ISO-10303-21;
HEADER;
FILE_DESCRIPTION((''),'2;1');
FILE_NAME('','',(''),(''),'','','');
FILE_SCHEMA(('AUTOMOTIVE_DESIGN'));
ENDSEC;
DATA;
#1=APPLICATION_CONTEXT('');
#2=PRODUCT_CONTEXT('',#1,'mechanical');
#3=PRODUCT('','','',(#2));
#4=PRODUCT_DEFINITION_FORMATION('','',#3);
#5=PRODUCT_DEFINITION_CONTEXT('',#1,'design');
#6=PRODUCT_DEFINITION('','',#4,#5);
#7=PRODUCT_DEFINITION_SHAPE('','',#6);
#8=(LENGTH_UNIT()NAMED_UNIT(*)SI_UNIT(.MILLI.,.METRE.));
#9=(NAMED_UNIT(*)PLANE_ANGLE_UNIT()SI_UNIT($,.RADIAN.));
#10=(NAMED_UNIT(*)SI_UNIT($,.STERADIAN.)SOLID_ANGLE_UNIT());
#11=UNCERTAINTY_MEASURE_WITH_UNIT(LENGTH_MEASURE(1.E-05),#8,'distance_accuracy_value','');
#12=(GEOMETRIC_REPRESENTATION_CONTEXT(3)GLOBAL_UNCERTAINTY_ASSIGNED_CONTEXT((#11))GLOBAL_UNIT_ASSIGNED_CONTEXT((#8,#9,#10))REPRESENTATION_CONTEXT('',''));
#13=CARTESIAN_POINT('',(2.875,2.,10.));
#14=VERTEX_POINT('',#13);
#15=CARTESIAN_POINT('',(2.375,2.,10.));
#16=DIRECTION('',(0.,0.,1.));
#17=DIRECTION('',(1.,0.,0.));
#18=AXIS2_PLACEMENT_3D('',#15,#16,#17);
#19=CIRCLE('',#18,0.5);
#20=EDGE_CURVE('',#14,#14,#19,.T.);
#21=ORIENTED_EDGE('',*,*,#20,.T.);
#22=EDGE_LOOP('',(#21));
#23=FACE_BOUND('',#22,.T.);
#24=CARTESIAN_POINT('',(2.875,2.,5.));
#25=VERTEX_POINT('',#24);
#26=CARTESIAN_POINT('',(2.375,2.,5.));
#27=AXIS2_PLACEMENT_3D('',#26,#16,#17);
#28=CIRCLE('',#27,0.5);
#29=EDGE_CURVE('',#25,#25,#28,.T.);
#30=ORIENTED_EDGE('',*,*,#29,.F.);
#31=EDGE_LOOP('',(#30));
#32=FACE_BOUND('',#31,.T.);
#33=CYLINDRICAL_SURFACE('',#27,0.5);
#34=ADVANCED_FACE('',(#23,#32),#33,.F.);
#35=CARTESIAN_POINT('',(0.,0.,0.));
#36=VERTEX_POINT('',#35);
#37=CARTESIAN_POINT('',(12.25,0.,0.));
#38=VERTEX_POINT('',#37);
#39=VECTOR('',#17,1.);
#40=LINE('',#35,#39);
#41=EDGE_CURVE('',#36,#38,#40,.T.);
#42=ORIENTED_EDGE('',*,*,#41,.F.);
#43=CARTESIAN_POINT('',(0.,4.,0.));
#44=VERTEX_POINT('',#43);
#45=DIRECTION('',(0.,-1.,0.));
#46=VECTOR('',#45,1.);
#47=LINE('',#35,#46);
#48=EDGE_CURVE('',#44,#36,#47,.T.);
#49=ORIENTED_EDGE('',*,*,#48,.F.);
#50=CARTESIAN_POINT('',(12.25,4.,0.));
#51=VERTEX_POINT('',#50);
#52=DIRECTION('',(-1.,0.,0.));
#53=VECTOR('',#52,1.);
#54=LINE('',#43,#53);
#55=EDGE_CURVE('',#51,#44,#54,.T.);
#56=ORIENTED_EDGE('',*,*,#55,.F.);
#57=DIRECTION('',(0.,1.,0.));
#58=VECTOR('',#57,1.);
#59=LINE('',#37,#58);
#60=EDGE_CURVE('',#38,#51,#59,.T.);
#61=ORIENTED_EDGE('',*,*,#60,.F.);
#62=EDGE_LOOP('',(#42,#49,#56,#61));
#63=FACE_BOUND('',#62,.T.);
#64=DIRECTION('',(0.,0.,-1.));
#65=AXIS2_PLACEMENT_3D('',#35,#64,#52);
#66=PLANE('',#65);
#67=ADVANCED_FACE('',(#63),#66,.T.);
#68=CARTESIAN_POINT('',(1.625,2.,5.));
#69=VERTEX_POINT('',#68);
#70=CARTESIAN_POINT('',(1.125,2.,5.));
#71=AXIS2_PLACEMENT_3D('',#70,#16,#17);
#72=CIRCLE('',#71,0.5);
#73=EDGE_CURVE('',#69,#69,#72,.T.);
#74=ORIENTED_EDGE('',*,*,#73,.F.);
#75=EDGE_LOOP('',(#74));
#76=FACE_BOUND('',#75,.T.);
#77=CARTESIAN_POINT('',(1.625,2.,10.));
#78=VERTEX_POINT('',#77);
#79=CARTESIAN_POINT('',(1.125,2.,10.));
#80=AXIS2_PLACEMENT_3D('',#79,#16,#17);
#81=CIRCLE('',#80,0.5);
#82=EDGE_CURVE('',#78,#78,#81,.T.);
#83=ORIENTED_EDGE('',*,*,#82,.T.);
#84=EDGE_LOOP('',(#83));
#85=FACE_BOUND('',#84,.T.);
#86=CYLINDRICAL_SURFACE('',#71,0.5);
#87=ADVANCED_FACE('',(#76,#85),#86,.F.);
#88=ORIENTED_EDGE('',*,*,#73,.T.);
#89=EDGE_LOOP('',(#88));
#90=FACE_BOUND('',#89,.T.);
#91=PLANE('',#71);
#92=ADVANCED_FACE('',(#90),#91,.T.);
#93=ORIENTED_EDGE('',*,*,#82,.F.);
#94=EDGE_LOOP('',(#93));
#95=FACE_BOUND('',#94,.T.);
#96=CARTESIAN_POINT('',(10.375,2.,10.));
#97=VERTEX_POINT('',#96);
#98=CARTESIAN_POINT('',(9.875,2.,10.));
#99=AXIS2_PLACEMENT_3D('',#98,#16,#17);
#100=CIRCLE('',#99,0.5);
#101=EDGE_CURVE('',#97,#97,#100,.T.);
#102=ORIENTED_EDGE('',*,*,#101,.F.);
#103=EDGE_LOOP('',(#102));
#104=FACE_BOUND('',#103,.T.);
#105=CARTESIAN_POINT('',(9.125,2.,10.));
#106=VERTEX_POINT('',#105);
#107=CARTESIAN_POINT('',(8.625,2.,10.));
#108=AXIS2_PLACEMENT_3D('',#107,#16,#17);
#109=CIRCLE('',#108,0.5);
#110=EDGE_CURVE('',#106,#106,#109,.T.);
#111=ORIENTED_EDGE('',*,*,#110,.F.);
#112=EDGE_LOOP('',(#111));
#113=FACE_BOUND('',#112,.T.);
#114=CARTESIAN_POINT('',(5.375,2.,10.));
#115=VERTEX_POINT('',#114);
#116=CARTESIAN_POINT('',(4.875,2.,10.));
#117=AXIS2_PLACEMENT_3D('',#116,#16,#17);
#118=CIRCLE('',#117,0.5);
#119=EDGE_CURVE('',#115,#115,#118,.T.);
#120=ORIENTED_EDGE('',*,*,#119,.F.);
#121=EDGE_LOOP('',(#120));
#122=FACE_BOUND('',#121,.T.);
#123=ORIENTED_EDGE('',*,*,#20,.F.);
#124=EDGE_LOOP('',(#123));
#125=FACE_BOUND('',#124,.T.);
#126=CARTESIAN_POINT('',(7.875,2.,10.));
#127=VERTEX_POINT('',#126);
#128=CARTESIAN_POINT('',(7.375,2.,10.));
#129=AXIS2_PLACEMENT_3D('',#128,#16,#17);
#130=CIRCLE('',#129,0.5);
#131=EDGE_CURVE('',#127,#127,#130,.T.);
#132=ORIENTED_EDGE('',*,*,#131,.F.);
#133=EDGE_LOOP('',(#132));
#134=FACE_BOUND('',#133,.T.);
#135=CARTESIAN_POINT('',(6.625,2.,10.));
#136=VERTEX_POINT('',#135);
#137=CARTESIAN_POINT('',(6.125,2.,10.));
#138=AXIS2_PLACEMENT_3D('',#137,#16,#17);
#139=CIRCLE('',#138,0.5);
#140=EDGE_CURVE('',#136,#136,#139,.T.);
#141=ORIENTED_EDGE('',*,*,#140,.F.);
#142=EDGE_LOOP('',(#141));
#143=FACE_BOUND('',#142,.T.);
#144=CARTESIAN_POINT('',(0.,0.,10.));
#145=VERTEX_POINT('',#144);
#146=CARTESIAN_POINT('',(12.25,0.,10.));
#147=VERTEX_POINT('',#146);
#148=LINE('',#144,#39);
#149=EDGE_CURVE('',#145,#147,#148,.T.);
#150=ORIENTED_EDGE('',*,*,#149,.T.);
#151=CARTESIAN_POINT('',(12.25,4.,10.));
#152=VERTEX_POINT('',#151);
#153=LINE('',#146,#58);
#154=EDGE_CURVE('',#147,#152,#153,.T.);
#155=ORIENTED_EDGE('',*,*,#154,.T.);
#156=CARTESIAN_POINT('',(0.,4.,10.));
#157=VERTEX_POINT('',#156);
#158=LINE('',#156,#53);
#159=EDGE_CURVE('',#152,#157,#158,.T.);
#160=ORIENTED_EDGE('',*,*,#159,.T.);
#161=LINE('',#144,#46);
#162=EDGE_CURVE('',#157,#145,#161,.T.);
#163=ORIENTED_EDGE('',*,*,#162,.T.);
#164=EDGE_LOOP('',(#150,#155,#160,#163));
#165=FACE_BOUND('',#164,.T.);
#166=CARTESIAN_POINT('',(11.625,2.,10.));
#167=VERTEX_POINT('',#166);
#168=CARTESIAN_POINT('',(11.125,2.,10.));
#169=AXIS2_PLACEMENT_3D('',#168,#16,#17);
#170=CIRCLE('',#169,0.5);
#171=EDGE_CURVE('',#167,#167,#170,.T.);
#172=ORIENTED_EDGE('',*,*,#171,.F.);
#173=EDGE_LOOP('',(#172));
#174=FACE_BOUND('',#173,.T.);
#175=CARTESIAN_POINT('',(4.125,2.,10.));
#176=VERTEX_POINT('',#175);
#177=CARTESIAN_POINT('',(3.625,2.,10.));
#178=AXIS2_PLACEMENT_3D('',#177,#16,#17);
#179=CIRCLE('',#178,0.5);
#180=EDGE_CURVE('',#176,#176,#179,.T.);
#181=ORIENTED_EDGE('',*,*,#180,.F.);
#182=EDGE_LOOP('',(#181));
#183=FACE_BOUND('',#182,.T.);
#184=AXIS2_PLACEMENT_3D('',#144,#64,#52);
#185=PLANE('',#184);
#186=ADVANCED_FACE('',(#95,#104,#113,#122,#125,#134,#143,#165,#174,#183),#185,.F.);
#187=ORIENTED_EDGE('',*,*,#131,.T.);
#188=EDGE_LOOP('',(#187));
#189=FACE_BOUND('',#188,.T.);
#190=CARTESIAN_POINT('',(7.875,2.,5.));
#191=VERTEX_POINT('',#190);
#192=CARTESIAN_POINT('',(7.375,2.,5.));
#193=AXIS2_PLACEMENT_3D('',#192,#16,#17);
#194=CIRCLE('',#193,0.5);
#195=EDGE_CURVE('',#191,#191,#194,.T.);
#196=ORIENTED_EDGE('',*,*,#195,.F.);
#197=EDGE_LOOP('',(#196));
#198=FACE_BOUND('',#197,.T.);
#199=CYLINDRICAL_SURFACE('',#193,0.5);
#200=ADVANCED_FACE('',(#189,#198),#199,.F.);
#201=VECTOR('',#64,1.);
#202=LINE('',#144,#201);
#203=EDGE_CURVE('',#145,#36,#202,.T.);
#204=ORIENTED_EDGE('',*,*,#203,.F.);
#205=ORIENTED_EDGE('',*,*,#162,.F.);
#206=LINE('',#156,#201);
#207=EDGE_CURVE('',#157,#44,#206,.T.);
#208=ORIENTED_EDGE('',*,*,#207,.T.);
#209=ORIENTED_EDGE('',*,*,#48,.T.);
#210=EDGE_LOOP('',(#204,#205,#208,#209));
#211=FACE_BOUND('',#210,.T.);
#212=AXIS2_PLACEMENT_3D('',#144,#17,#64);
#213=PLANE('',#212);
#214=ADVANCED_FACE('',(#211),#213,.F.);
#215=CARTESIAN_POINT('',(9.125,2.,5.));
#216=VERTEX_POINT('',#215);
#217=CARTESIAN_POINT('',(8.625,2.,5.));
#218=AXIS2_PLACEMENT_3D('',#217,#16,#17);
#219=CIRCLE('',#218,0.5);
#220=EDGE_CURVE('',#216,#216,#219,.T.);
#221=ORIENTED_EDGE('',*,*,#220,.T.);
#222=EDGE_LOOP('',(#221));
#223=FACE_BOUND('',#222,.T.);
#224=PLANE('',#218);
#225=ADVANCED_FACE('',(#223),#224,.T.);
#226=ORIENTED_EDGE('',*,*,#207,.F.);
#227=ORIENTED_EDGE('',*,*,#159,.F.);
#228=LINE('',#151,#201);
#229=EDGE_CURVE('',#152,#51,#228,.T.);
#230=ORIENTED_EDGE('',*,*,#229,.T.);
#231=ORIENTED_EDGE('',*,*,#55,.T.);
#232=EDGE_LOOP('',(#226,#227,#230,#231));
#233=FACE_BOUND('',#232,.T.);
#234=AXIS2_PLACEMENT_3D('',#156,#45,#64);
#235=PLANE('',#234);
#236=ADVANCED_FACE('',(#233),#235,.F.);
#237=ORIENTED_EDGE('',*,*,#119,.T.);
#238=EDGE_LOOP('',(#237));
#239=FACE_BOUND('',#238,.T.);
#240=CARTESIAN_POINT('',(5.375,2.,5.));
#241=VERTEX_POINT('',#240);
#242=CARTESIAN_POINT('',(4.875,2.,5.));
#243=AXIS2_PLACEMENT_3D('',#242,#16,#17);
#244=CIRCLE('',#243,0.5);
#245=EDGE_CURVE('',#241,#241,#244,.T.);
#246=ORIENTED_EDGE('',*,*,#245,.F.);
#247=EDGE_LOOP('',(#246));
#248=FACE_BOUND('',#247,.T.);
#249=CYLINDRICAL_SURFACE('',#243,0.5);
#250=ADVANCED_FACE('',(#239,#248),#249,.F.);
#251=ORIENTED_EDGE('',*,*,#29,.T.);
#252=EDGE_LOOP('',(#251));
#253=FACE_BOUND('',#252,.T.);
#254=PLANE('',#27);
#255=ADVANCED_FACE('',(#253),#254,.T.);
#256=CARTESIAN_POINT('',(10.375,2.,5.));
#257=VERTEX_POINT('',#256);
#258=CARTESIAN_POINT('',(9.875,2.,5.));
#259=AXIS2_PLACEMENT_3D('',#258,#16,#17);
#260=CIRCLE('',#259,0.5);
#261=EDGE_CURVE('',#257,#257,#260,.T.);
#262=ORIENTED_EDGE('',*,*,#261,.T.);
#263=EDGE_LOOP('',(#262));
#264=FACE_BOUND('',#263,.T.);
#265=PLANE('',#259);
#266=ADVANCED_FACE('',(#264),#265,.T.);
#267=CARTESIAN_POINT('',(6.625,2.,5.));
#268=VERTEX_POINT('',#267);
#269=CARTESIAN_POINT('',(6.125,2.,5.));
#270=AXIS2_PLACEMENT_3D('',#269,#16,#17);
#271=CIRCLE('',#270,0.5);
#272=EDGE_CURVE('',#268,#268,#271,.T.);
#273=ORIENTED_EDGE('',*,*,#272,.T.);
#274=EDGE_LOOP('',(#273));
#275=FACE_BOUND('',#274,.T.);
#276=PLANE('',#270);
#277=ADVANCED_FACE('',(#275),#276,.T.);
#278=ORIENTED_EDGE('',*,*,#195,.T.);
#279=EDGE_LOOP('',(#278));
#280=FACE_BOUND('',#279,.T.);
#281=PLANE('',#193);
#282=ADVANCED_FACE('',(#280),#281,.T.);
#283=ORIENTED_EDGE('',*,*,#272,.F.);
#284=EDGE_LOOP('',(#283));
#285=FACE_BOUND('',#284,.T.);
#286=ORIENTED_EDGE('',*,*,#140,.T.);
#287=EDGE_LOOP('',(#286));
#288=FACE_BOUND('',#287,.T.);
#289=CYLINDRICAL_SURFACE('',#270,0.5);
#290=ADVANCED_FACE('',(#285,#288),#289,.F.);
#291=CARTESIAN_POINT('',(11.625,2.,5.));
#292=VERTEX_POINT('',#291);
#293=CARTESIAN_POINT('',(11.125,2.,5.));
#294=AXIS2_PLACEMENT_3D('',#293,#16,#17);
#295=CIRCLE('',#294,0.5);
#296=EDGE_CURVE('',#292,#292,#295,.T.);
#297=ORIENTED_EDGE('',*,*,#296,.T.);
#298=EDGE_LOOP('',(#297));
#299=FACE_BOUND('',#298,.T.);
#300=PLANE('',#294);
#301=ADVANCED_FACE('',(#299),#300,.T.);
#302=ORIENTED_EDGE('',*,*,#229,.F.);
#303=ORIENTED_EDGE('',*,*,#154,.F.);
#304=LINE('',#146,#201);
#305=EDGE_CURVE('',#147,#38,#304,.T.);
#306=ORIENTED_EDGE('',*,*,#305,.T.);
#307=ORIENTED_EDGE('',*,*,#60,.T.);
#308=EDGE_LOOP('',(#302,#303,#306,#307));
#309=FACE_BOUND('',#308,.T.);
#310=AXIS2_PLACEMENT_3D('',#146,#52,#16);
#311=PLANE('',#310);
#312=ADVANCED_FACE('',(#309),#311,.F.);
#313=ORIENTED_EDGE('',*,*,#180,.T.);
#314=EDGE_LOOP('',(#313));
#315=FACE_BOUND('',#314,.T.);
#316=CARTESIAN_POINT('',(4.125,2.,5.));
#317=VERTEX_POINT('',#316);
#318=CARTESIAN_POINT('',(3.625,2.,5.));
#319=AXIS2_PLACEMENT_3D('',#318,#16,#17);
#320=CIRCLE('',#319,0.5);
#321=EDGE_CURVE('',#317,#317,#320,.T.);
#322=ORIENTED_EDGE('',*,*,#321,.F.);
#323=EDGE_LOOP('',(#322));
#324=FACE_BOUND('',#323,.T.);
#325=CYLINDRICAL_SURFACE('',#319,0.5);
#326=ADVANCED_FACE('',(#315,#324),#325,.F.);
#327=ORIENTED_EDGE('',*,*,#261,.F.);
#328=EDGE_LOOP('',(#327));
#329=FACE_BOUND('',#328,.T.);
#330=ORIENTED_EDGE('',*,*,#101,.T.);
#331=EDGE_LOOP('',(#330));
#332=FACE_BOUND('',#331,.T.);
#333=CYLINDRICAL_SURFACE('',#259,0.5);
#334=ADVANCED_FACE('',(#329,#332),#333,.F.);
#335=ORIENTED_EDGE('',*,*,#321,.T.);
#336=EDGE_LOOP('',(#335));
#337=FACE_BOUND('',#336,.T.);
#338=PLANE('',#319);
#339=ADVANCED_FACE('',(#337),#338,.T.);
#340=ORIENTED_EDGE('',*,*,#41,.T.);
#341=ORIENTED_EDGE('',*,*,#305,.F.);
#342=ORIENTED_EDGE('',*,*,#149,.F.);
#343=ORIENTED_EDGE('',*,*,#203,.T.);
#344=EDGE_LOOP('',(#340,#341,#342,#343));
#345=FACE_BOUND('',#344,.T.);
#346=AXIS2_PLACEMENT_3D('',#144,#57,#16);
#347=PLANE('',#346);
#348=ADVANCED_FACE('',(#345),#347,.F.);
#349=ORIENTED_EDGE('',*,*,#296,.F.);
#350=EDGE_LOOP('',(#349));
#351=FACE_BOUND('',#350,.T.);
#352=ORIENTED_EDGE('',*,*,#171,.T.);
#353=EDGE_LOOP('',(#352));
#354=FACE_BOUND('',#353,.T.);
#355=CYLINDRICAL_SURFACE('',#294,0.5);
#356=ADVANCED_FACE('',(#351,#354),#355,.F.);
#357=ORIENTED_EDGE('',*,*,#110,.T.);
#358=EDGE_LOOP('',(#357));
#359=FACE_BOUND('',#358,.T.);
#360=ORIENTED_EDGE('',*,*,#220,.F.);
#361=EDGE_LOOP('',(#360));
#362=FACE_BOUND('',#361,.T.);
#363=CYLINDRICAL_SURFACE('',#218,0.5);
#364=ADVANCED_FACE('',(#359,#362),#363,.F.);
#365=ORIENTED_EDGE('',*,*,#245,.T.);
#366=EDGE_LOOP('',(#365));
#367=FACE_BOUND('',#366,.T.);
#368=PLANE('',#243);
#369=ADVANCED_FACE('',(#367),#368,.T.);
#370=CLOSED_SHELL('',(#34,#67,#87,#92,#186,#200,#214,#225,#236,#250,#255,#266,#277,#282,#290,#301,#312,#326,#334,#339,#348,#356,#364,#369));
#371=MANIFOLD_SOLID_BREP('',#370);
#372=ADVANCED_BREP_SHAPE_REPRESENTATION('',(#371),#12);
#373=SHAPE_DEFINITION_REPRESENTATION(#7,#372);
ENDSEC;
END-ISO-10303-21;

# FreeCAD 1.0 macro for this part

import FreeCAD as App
import Part
import Sketcher
Q = App.Units.Quantity

doc = App.newDocument("Part")
params = doc.addObject("Spreadsheet::Sheet", "Params")
for row, (alias, value) in enumerate([
    ("sketch1_height", "4 mm"),
    ("sketch1_width", "12.25 mm"),
    ("pad1_length", "10 mm"),
    ("sketch2_diameter", "1 mm"),
    ("pocket1_length", "5 mm"),
], start=1):
    params.set(f"A{row}", alias)
    params.set(f"B{row}", "=" + value)
    params.setAlias(f"B{row}", alias)

body = doc.addObject("PartDesign::Body", "Body")

# Sketch on XY plane
sketch1 = body.newObject("Sketcher::SketchObject", "Sketch")
sketch1.AttachmentSupport = (doc.getObject("XY_Plane"), [""])
sketch1.MapMode = "FlatFace"
sketch1.addGeometry([
    Part.LineSegment(App.Vector(0, 4, 0), App.Vector(0, 0, 0)),
    Part.LineSegment(App.Vector(0, 0, 0), App.Vector(12.2, 0, 0)),
    Part.LineSegment(App.Vector(12.2, 0, 0), App.Vector(12.2, 4, 0)),
    Part.LineSegment(App.Vector(12.2, 4, 0), App.Vector(0, 4, 0)),
], False)
sketch1.addConstraint([
    Sketcher.Constraint("Coincident", 0, 2, 1, 1),
    Sketcher.Constraint("Coincident", 1, 2, 2, 1),
    Sketcher.Constraint("Coincident", 2, 2, 3, 1),
    Sketcher.Constraint("Coincident", 3, 2, 0, 1),
    Sketcher.Constraint("Vertical", 0),
    Sketcher.Constraint("Horizontal", 1),
    Sketcher.Constraint("Vertical", 2),
    Sketcher.Constraint("Horizontal", 3),
    Sketcher.Constraint("Coincident", 0, 2, -1, 1),
    Sketcher.Constraint("DistanceY", 0, 2, 0, 1, Q("4 mm")),
    Sketcher.Constraint("DistanceX", 1, 1, 1, 2, Q("12.25 mm")),
])
sketch1.setExpression("Constraints[9]", "Params.sketch1_height")
sketch1.setExpression("Constraints[10]", "Params.sketch1_width")
pad1 = body.newObject("PartDesign::Pad", "Pad")
pad1.Profile = sketch1
pad1.setExpression("Length", "Params.pad1_length")

# Sketch on XY plane
sketch2 = body.newObject("Sketcher::SketchObject", "Sketch001")
sketch2.AttachmentSupport = (doc.getObject("XY_Plane"), [""])
sketch2.MapMode = "FlatFace"
sketch2.AttachmentOffset = App.Placement(App.Vector(0, 0, 10), App.Rotation())
sketch2.addGeometry([
    Part.Circle(App.Vector(1.1, 2, 0), App.Vector(0, 0, 1), 0.5),  # 0
    Part.Circle(App.Vector(2.4, 2, 0), App.Vector(0, 0, 1), 0.5),  # 1
    Part.Circle(App.Vector(3.6, 2, 0), App.Vector(0, 0, 1), 0.5),  # 2
    Part.Circle(App.Vector(4.9, 2, 0), App.Vector(0, 0, 1), 0.5),  # 3
    Part.Circle(App.Vector(6.1, 2, 0), App.Vector(0, 0, 1), 0.5),  # 4
    Part.Circle(App.Vector(7.4, 2, 0), App.Vector(0, 0, 1), 0.5),  # 5
    Part.Circle(App.Vector(8.6, 2, 0), App.Vector(0, 0, 1), 0.5),  # 6
    Part.Circle(App.Vector(9.9, 2, 0), App.Vector(0, 0, 1), 0.5),  # 7
    Part.Circle(App.Vector(11.1, 2, 0), App.Vector(0, 0, 1), 0.5),  # 8
], False)
sketch2.addConstraint([
    Sketcher.Constraint("Equal", 0, 1),
    Sketcher.Constraint("Equal", 1, 2),
    Sketcher.Constraint("Equal", 2, 3),
    Sketcher.Constraint("Equal", 3, 4),
    Sketcher.Constraint("Equal", 4, 5),
    Sketcher.Constraint("Equal", 5, 6),
    Sketcher.Constraint("Equal", 6, 7),
    Sketcher.Constraint("Equal", 7, 8),
    Sketcher.Constraint("Horizontal", 0, 3, 1, 3),
    Sketcher.Constraint("Horizontal", 1, 3, 2, 3),
    Sketcher.Constraint("Horizontal", 2, 3, 3, 3),
    Sketcher.Constraint("Horizontal", 3, 3, 4, 3),
    Sketcher.Constraint("Horizontal", 4, 3, 5, 3),
    Sketcher.Constraint("Horizontal", 5, 3, 6, 3),
    Sketcher.Constraint("Horizontal", 6, 3, 7, 3),
    Sketcher.Constraint("Horizontal", 7, 3, 8, 3),
    Sketcher.Constraint("Diameter", 0, Q("1 mm")),
    Sketcher.Constraint("DistanceY", -1, 1, 0, 3, Q("2 mm")),
    Sketcher.Constraint("DistanceX", 0, 3, 4, 3, Q("5 mm")),
    Sketcher.Constraint("DistanceX", 1, 3, 5, 3, Q("5 mm")),
    Sketcher.Constraint("DistanceX", 2, 3, 6, 3, Q("5 mm")),
    Sketcher.Constraint("DistanceX", 3, 3, 7, 3, Q("5 mm")),
    Sketcher.Constraint("DistanceX", 4, 3, 8, 3, Q("5 mm")),
    Sketcher.Constraint("DistanceX", 0, 3, 2, 3, Q("2.5 mm")),
    Sketcher.Constraint("DistanceX", 1, 3, 3, 3, Q("2.5 mm")),
    Sketcher.Constraint("DistanceX", 0, 3, 1, 3, Q("1.25 mm")),
    Sketcher.Constraint("DistanceX", -1, 1, 0, 3, Q("1.125 mm")),
])
sketch2.setExpression("Constraints[16]", "Params.sketch2_diameter")
pocket1 = body.newObject("PartDesign::Pocket", "Pocket")
pocket1.Profile = sketch2
pocket1.setExpression("Length", "Params.pocket1_length")

doc.recompute()
